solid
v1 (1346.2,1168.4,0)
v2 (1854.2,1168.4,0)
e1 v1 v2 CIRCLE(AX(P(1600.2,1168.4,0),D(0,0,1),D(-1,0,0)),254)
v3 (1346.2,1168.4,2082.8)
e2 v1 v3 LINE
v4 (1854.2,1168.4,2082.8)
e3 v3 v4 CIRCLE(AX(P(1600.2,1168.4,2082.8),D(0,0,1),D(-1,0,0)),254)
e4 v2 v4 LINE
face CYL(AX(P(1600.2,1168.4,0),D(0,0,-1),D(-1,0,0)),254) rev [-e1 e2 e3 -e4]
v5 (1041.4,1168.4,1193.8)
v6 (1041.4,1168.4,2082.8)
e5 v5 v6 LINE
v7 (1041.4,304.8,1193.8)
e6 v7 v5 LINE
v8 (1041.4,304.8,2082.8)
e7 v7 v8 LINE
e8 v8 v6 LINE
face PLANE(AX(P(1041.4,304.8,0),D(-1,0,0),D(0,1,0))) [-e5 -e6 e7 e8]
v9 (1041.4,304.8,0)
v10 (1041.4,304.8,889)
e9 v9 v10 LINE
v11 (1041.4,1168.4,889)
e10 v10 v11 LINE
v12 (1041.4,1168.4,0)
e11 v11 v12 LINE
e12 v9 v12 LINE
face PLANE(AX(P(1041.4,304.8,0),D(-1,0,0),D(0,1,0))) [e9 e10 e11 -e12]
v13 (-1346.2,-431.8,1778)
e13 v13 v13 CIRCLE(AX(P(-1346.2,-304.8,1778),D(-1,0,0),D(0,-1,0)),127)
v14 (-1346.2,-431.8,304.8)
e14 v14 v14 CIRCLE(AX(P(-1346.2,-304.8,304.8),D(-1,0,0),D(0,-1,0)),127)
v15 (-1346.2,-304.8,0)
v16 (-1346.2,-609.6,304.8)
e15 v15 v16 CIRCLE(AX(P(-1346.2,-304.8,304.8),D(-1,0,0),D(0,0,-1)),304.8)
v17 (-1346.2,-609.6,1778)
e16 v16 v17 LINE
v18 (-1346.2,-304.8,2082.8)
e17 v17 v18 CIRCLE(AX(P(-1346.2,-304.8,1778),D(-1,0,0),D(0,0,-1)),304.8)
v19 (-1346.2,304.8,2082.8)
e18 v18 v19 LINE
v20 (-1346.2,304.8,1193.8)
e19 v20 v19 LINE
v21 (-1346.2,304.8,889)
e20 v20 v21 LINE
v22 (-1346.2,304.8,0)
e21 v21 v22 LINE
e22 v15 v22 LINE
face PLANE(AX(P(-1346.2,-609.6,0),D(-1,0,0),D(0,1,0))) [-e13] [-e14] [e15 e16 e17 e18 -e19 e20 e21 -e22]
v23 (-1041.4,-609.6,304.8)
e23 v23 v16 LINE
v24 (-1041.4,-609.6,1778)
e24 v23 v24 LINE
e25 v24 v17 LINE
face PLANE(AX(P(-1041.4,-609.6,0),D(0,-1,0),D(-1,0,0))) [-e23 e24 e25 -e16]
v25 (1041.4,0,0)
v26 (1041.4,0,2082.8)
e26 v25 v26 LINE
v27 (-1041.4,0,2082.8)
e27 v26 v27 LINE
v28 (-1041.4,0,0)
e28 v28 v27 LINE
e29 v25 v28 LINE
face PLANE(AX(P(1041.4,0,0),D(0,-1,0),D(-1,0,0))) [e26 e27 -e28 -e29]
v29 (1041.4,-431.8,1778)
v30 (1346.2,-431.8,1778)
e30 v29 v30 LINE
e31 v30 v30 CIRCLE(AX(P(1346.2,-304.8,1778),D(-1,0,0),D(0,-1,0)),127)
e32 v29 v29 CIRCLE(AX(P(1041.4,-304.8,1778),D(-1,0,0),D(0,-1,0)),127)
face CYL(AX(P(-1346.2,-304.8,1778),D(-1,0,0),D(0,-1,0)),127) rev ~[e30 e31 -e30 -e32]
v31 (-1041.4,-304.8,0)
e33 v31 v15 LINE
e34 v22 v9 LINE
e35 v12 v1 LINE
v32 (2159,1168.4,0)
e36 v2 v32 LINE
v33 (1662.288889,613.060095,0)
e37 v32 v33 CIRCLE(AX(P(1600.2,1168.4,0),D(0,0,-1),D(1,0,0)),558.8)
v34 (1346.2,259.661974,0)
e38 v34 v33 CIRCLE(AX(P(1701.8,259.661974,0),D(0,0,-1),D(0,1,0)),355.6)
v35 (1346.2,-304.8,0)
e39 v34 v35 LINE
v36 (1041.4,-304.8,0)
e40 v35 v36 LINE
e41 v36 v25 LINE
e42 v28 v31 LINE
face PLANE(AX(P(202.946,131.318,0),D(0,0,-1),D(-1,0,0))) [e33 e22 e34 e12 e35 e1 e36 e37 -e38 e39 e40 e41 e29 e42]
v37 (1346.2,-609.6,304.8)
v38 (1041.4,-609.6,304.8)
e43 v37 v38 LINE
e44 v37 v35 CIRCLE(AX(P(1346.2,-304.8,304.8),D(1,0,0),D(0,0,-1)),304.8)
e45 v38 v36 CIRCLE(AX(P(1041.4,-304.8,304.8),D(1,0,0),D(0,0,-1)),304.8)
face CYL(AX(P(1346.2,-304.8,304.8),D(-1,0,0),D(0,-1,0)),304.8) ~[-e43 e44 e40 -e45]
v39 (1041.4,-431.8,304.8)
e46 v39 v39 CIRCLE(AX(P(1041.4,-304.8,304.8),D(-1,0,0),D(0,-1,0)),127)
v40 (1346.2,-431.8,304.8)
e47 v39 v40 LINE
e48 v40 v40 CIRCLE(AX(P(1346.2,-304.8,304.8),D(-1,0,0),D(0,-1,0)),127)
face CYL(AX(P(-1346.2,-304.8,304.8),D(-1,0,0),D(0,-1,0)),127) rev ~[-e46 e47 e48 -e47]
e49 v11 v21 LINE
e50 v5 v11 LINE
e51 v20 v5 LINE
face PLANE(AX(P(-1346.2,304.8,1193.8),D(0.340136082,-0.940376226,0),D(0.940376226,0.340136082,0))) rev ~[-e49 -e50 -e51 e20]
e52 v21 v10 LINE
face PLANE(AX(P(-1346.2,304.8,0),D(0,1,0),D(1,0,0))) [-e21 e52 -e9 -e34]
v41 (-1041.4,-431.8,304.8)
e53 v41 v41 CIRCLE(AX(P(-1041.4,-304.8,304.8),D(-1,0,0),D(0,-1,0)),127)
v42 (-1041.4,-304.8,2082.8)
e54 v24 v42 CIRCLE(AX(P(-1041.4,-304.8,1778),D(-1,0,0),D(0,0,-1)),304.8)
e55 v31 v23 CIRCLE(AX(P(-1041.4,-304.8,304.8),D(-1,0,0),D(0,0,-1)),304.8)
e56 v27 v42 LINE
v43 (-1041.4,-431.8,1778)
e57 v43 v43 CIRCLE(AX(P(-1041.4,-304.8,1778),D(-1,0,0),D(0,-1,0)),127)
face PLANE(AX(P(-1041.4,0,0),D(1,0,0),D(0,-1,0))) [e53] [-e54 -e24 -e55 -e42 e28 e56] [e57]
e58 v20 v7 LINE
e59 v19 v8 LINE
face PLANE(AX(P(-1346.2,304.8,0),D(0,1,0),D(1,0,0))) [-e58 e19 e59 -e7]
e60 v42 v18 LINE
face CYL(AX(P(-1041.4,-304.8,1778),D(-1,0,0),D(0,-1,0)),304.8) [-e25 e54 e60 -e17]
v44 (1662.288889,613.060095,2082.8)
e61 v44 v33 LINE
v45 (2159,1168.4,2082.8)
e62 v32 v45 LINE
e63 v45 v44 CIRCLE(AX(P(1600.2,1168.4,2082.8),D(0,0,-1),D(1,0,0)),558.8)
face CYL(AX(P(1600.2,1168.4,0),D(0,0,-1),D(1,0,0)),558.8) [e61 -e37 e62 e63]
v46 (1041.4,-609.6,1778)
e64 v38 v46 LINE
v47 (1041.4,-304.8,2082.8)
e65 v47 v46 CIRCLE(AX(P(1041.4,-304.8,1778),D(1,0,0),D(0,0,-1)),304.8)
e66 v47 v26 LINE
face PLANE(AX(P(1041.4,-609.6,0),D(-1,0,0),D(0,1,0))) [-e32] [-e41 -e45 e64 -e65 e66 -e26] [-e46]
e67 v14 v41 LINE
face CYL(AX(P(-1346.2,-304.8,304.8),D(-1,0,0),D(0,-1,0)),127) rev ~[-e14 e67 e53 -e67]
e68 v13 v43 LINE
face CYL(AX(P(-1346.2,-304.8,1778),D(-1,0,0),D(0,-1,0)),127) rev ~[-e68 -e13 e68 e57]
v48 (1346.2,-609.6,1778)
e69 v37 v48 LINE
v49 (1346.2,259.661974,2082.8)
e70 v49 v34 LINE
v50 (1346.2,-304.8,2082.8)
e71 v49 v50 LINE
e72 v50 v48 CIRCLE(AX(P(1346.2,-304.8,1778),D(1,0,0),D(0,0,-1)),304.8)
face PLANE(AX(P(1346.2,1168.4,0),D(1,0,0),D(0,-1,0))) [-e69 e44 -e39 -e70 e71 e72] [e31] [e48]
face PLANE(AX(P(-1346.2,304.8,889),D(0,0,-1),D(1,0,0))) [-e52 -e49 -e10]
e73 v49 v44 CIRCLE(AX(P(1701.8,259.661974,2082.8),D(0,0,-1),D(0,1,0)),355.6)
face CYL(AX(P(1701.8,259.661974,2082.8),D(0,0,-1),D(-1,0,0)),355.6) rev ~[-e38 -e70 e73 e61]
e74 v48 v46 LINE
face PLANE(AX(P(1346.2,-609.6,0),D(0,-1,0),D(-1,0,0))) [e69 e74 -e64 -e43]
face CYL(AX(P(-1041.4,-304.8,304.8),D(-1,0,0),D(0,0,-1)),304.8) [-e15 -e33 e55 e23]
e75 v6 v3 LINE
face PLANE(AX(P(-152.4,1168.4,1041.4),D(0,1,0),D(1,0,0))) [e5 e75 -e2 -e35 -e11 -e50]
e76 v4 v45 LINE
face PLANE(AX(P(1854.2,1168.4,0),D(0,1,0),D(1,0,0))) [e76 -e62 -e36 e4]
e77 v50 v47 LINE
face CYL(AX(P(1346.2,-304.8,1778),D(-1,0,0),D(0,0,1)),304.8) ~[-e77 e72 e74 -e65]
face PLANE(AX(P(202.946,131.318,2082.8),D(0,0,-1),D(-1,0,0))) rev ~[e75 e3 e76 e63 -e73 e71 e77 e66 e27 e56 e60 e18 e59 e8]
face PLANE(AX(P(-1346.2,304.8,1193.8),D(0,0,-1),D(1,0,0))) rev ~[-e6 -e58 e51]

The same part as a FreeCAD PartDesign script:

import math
import FreeCAD as App
import Part
import Sketcher

V = App.Vector
Q = App.Units.Quantity


def edges_at(feature, points):
    """Names of the edges that pass closest to the given points."""
    edges = feature.Shape.Edges
    near = lambda p: min(range(len(edges)), key=lambda i: edges[i].distToShape(Part.Vertex(*p))[0])
    return sorted({f"Edge{near(p) + 1}" for p in points})

doc = App.newDocument("Part")
body = doc.addObject("PartDesign::Body", "Body")

sketch1 = body.newObject("Sketcher::SketchObject", "Sketch")
sketch1.AttachmentSupport = (doc.getObject("XY_Plane"), [""])
sketch1.MapMode = "FlatFace"
sketch1.addGeometry(Part.LineSegment(V(-1346, 305, 0), V(-1346, -610, 0)), False)
sketch1.addGeometry(Part.LineSegment(V(-1346, -610, 0), V(-1041, -610, 0)), False)
sketch1.addGeometry(Part.LineSegment(V(-1041, -610, 0), V(-1041, 0, 0)), False)
sketch1.addGeometry(Part.LineSegment(V(-1041, 0, 0), V(1041, 0, 0)), False)
sketch1.addGeometry(Part.LineSegment(V(1041, 0, 0), V(1041, -610, 0)), False)
sketch1.addGeometry(Part.LineSegment(V(1041, -610, 0), V(1346, -610, 0)), False)
sketch1.addGeometry(Part.LineSegment(V(1346, -610, 0), V(1346, 1168, 0)), False)
sketch1.addGeometry(Part.LineSegment(V(1346, 1168, 0), V(1041, 1168, 0)), False)
sketch1.addGeometry(Part.LineSegment(V(1041, 1168, 0), V(1041, 305, 0)), False)
sketch1.addGeometry(Part.LineSegment(V(1041, 305, 0), V(-1346, 305, 0)), False)
sketch1.addConstraint(Sketcher.Constraint("Coincident", 0, 2, 1, 1))
sketch1.addConstraint(Sketcher.Constraint("Coincident", 1, 2, 2, 1))
sketch1.addConstraint(Sketcher.Constraint("Coincident", 2, 2, 3, 1))
sketch1.addConstraint(Sketcher.Constraint("Coincident", 3, 2, 4, 1))
sketch1.addConstraint(Sketcher.Constraint("Coincident", 4, 2, 5, 1))
sketch1.addConstraint(Sketcher.Constraint("Coincident", 5, 2, 6, 1))
sketch1.addConstraint(Sketcher.Constraint("Coincident", 6, 2, 7, 1))
sketch1.addConstraint(Sketcher.Constraint("Coincident", 7, 2, 8, 1))
sketch1.addConstraint(Sketcher.Constraint("Coincident", 8, 2, 9, 1))
sketch1.addConstraint(Sketcher.Constraint("Coincident", 9, 2, 0, 1))
sketch1.addConstraint(Sketcher.Constraint("Vertical", 0))
sketch1.addConstraint(Sketcher.Constraint("Horizontal", 1))
sketch1.addConstraint(Sketcher.Constraint("Vertical", 2))
sketch1.addConstraint(Sketcher.Constraint("Horizontal", 3))
sketch1.addConstraint(Sketcher.Constraint("Vertical", 4))
sketch1.addConstraint(Sketcher.Constraint("Horizontal", 5))
sketch1.addConstraint(Sketcher.Constraint("Vertical", 6))
sketch1.addConstraint(Sketcher.Constraint("Horizontal", 7))
sketch1.addConstraint(Sketcher.Constraint("Vertical", 8))
sketch1.addConstraint(Sketcher.Constraint("Horizontal", 9))
sketch1.addConstraint(Sketcher.Constraint("Symmetric", 2, 2, 3, 2, -1, 1))
sketch1.addConstraint(Sketcher.Constraint("Symmetric", 0, 2, 5, 2, -2))
sketch1.addConstraint(Sketcher.Constraint("Vertical", 4, 2, 7, 2))
sketch1.addConstraint(Sketcher.Constraint("DistanceX", 1, 1, 1, 2, Q("12 in")))
sketch1.addConstraint(Sketcher.Constraint("DistanceX", 3, 1, 3, 2, Q("82 in")))
sketch1.addConstraint(Sketcher.Constraint("DistanceY", 0, 2, 0, 1, Q("36 in")))
sketch1.addConstraint(Sketcher.Constraint("DistanceY", 2, 1, 2, 2, Q("24 in")))
sketch1.addConstraint(Sketcher.Constraint("DistanceY", 6, 1, 6, 2, Q("70 in")))
pad1 = body.newObject("PartDesign::Pad", "Pad")
pad1.Profile = sketch1
pad1.Length = Q("82 in")

sketch2 = body.newObject("Sketcher::SketchObject", "Sketch001")
sketch2.AttachmentSupport = (doc.getObject("XZ_Plane"), [""])
sketch2.MapMode = "FlatFace"
sketch2.AttachmentOffset = App.Placement(V(0, 0, -12 * 25.4), App.Rotation())
sketch2.addGeometry(Part.LineSegment(V(-1346, 889, 0), V(-1346, 1194, 0)), False)
sketch2.addGeometry(Part.LineSegment(V(-1346, 1194, 0), V(1041, 1194, 0)), False)
sketch2.addGeometry(Part.LineSegment(V(1041, 1194, 0), V(1041, 889, 0)), False)
sketch2.addGeometry(Part.LineSegment(V(1041, 889, 0), V(-1346, 889, 0)), False)
sketch2.addConstraint(Sketcher.Constraint("Coincident", 0, 2, 1, 1))
sketch2.addConstraint(Sketcher.Constraint("Coincident", 1, 2, 2, 1))
sketch2.addConstraint(Sketcher.Constraint("Coincident", 2, 2, 3, 1))
sketch2.addConstraint(Sketcher.Constraint("Coincident", 3, 2, 0, 1))
sketch2.addConstraint(Sketcher.Constraint("Vertical", 0))
sketch2.addConstraint(Sketcher.Constraint("Horizontal", 1))
sketch2.addConstraint(Sketcher.Constraint("Vertical", 2))
sketch2.addConstraint(Sketcher.Constraint("Horizontal", 3))
sketch2.addConstraint(Sketcher.Constraint("DistanceX", 1, 1, 1, 2, Q("94 in")))
sketch2.addConstraint(Sketcher.Constraint("DistanceY", 0, 1, 0, 2, Q("12 in")))
sketch2.addConstraint(Sketcher.Constraint("DistanceX", 0, 2, -1, 1, Q("53 in")))
sketch2.addConstraint(Sketcher.Constraint("DistanceY", -1, 1, 0, 2, Q("47 in")))
pad2 = body.newObject("PartDesign::Pad", "Pad001")
pad2.Profile = sketch2
pad2.Length = Q("34 in")
pad2.Reversed = True

sketch3 = body.newObject("Sketcher::SketchObject", "Sketch002")
sketch3.AttachmentSupport = (doc.getObject("XY_Plane"), [""])
sketch3.MapMode = "FlatFace"
sketch3.AttachmentOffset = App.Placement(V(0, 0, 47 * 25.4), App.Rotation())
sketch3.addGeometry(Part.LineSegment(V(-1346, 305, 0), V(1041, 1168, 0)), False)
sketch3.addGeometry(Part.LineSegment(V(1041, 1168, 0), V(-1346, 1168, 0)), False)
sketch3.addGeometry(Part.LineSegment(V(-1346, 1168, 0), V(-1346, 305, 0)), False)
sketch3.addConstraint(Sketcher.Constraint("Coincident", 0, 2, 1, 1))
sketch3.addConstraint(Sketcher.Constraint("Coincident", 1, 2, 2, 1))
sketch3.addConstraint(Sketcher.Constraint("Coincident", 2, 2, 0, 1))
sketch3.addConstraint(Sketcher.Constraint("Horizontal", 1))
sketch3.addConstraint(Sketcher.Constraint("Vertical", 2))
sketch3.addConstraint(Sketcher.Constraint("DistanceX", 1, 2, 1, 1, Q("94 in")))
sketch3.addConstraint(Sketcher.Constraint("DistanceY", 2, 2, 2, 1, Q("34 in")))
sketch3.addConstraint(Sketcher.Constraint("DistanceX", -1, 1, 0, 2, Q("41 in")))
sketch3.addConstraint(Sketcher.Constraint("DistanceY", -1, 1, 0, 2, Q("46 in")))
pocket1 = body.newObject("PartDesign::Pocket", "Pocket")
pocket1.Profile = sketch3
pocket1.Length = Q("34 in")

sketch4 = body.newObject("Sketcher::SketchObject", "Sketch003")
sketch4.AttachmentSupport = (doc.getObject("XY_Plane"), [""])
sketch4.MapMode = "FlatFace"
sketch4.AttachmentOffset = App.Placement(V(0, 0, 47 * 25.4), App.Rotation())
sketch4.addGeometry(Part.LineSegment(V(1346, 1168, 0), V(1041, 1168, 0)), False)
sketch4.addGeometry(Part.ArcOfCircle(Part.Circle(V(1600, 1168, 0), V(0, 0, 1), 559), math.radians(180), math.radians(360)), False)
sketch4.addGeometry(Part.LineSegment(V(2159, 1168, 0), V(1854, 1168, 0)), False)
sketch4.addGeometry(Part.ArcOfCircle(Part.Circle(V(1600, 1168, 0), V(0, 0, 1), 254), math.radians(180), math.radians(360)), False)
sketch4.addConstraint(Sketcher.Constraint("Coincident", 0, 2, 1, 1))
sketch4.addConstraint(Sketcher.Constraint("Coincident", 1, 2, 2, 1))
sketch4.addConstraint(Sketcher.Constraint("Coincident", 2, 2, 3, 2))
sketch4.addConstraint(Sketcher.Constraint("Coincident", 3, 1, 0, 1))
sketch4.addConstraint(Sketcher.Constraint("Horizontal", 0))
sketch4.addConstraint(Sketcher.Constraint("Horizontal", 2))
sketch4.addConstraint(Sketcher.Constraint("Coincident", 3, 3, 1, 3))
sketch4.addConstraint(Sketcher.Constraint("Horizontal", 3, 3, 0, 2))
sketch4.addConstraint(Sketcher.Constraint("Horizontal", 2, 2, 3, 1))
sketch4.addConstraint(Sketcher.Constraint("Radius", 1, Q("22 in")))
sketch4.addConstraint(Sketcher.Constraint("Radius", 3, Q("10 in")))
sketch4.addConstraint(Sketcher.Constraint("DistanceX", -1, 1, 1, 3, Q("63 in")))
sketch4.addConstraint(Sketcher.Constraint("DistanceY", -1, 1, 1, 3, Q("46 in")))
pad3 = body.newObject("PartDesign::Pad", "Pad002")
pad3.Profile = sketch4
pad3.Type = "TwoLengths"
pad3.Length = Q("35 in")
pad3.Length2 = Q("47 in")
doc.recompute()

fillet = body.newObject("PartDesign::Fillet", "Fillet")
fillet.Base = (pad3, edges_at(pad3, [(1346.2, 670.664, 1041.4)]))
fillet.Radius = Q("14 in")
doc.recompute()

fillet2 = body.newObject("PartDesign::Fillet", "Fillet001")
fillet2.Base = (fillet, edges_at(fillet, [(-1193.8, -609.6, 0)]))
fillet2.Radius = Q("12 in")
doc.recompute()

fillet3 = body.newObject("PartDesign::Fillet", "Fillet002")
fillet3.Base = (fillet2, edges_at(fillet2, [(-1193.8, -609.6, 2082.8)]))
fillet3.Radius = Q("12 in")
doc.recompute()

fillet4 = body.newObject("PartDesign::Fillet", "Fillet003")
fillet4.Base = (fillet3, edges_at(fillet3, [(1193.8, -609.6, 2082.8)]))
fillet4.Radius = Q("12 in")
doc.recompute()

fillet5 = body.newObject("PartDesign::Fillet", "Fillet004")
fillet5.Base = (fillet4, edges_at(fillet4, [(1193.8, -609.6, 0)]))
fillet5.Radius = Q("12 in")

sketch5 = body.newObject("Sketcher::SketchObject", "Sketch004")
sketch5.AttachmentSupport = (doc.getObject("YZ_Plane"), [""])
sketch5.MapMode = "FlatFace"
sketch5.AttachmentOffset = App.Placement(V(0, 0, -53 * 25.4), App.Rotation())
sketch5.addGeometry(Part.Circle(V(-305, 1778, 0), V(0, 0, 1), 127), False)
sketch5.addGeometry(Part.Circle(V(-305, 305, 0), V(0, 0, 1), 127), False)
sketch5.addConstraint(Sketcher.Constraint("Equal", 0, 1))
sketch5.addConstraint(Sketcher.Constraint("Vertical", 0, 3, 1, 3))
sketch5.addConstraint(Sketcher.Constraint("Diameter", 0, Q("10 in")))
sketch5.addConstraint(Sketcher.Constraint("DistanceX", 0, 3, -1, 1, Q("12 in")))
sketch5.addConstraint(Sketcher.Constraint("DistanceY", -1, 1, 0, 3, Q("70 in")))
sketch5.addConstraint(Sketcher.Constraint("DistanceY", -1, 1, 1, 3, Q("12 in")))
pocket2 = body.newObject("PartDesign::Pocket", "Pocket001")
pocket2.Profile = sketch5
pocket2.Type = "ThroughAll"
pocket2.Reversed = True

doc.recompute()
